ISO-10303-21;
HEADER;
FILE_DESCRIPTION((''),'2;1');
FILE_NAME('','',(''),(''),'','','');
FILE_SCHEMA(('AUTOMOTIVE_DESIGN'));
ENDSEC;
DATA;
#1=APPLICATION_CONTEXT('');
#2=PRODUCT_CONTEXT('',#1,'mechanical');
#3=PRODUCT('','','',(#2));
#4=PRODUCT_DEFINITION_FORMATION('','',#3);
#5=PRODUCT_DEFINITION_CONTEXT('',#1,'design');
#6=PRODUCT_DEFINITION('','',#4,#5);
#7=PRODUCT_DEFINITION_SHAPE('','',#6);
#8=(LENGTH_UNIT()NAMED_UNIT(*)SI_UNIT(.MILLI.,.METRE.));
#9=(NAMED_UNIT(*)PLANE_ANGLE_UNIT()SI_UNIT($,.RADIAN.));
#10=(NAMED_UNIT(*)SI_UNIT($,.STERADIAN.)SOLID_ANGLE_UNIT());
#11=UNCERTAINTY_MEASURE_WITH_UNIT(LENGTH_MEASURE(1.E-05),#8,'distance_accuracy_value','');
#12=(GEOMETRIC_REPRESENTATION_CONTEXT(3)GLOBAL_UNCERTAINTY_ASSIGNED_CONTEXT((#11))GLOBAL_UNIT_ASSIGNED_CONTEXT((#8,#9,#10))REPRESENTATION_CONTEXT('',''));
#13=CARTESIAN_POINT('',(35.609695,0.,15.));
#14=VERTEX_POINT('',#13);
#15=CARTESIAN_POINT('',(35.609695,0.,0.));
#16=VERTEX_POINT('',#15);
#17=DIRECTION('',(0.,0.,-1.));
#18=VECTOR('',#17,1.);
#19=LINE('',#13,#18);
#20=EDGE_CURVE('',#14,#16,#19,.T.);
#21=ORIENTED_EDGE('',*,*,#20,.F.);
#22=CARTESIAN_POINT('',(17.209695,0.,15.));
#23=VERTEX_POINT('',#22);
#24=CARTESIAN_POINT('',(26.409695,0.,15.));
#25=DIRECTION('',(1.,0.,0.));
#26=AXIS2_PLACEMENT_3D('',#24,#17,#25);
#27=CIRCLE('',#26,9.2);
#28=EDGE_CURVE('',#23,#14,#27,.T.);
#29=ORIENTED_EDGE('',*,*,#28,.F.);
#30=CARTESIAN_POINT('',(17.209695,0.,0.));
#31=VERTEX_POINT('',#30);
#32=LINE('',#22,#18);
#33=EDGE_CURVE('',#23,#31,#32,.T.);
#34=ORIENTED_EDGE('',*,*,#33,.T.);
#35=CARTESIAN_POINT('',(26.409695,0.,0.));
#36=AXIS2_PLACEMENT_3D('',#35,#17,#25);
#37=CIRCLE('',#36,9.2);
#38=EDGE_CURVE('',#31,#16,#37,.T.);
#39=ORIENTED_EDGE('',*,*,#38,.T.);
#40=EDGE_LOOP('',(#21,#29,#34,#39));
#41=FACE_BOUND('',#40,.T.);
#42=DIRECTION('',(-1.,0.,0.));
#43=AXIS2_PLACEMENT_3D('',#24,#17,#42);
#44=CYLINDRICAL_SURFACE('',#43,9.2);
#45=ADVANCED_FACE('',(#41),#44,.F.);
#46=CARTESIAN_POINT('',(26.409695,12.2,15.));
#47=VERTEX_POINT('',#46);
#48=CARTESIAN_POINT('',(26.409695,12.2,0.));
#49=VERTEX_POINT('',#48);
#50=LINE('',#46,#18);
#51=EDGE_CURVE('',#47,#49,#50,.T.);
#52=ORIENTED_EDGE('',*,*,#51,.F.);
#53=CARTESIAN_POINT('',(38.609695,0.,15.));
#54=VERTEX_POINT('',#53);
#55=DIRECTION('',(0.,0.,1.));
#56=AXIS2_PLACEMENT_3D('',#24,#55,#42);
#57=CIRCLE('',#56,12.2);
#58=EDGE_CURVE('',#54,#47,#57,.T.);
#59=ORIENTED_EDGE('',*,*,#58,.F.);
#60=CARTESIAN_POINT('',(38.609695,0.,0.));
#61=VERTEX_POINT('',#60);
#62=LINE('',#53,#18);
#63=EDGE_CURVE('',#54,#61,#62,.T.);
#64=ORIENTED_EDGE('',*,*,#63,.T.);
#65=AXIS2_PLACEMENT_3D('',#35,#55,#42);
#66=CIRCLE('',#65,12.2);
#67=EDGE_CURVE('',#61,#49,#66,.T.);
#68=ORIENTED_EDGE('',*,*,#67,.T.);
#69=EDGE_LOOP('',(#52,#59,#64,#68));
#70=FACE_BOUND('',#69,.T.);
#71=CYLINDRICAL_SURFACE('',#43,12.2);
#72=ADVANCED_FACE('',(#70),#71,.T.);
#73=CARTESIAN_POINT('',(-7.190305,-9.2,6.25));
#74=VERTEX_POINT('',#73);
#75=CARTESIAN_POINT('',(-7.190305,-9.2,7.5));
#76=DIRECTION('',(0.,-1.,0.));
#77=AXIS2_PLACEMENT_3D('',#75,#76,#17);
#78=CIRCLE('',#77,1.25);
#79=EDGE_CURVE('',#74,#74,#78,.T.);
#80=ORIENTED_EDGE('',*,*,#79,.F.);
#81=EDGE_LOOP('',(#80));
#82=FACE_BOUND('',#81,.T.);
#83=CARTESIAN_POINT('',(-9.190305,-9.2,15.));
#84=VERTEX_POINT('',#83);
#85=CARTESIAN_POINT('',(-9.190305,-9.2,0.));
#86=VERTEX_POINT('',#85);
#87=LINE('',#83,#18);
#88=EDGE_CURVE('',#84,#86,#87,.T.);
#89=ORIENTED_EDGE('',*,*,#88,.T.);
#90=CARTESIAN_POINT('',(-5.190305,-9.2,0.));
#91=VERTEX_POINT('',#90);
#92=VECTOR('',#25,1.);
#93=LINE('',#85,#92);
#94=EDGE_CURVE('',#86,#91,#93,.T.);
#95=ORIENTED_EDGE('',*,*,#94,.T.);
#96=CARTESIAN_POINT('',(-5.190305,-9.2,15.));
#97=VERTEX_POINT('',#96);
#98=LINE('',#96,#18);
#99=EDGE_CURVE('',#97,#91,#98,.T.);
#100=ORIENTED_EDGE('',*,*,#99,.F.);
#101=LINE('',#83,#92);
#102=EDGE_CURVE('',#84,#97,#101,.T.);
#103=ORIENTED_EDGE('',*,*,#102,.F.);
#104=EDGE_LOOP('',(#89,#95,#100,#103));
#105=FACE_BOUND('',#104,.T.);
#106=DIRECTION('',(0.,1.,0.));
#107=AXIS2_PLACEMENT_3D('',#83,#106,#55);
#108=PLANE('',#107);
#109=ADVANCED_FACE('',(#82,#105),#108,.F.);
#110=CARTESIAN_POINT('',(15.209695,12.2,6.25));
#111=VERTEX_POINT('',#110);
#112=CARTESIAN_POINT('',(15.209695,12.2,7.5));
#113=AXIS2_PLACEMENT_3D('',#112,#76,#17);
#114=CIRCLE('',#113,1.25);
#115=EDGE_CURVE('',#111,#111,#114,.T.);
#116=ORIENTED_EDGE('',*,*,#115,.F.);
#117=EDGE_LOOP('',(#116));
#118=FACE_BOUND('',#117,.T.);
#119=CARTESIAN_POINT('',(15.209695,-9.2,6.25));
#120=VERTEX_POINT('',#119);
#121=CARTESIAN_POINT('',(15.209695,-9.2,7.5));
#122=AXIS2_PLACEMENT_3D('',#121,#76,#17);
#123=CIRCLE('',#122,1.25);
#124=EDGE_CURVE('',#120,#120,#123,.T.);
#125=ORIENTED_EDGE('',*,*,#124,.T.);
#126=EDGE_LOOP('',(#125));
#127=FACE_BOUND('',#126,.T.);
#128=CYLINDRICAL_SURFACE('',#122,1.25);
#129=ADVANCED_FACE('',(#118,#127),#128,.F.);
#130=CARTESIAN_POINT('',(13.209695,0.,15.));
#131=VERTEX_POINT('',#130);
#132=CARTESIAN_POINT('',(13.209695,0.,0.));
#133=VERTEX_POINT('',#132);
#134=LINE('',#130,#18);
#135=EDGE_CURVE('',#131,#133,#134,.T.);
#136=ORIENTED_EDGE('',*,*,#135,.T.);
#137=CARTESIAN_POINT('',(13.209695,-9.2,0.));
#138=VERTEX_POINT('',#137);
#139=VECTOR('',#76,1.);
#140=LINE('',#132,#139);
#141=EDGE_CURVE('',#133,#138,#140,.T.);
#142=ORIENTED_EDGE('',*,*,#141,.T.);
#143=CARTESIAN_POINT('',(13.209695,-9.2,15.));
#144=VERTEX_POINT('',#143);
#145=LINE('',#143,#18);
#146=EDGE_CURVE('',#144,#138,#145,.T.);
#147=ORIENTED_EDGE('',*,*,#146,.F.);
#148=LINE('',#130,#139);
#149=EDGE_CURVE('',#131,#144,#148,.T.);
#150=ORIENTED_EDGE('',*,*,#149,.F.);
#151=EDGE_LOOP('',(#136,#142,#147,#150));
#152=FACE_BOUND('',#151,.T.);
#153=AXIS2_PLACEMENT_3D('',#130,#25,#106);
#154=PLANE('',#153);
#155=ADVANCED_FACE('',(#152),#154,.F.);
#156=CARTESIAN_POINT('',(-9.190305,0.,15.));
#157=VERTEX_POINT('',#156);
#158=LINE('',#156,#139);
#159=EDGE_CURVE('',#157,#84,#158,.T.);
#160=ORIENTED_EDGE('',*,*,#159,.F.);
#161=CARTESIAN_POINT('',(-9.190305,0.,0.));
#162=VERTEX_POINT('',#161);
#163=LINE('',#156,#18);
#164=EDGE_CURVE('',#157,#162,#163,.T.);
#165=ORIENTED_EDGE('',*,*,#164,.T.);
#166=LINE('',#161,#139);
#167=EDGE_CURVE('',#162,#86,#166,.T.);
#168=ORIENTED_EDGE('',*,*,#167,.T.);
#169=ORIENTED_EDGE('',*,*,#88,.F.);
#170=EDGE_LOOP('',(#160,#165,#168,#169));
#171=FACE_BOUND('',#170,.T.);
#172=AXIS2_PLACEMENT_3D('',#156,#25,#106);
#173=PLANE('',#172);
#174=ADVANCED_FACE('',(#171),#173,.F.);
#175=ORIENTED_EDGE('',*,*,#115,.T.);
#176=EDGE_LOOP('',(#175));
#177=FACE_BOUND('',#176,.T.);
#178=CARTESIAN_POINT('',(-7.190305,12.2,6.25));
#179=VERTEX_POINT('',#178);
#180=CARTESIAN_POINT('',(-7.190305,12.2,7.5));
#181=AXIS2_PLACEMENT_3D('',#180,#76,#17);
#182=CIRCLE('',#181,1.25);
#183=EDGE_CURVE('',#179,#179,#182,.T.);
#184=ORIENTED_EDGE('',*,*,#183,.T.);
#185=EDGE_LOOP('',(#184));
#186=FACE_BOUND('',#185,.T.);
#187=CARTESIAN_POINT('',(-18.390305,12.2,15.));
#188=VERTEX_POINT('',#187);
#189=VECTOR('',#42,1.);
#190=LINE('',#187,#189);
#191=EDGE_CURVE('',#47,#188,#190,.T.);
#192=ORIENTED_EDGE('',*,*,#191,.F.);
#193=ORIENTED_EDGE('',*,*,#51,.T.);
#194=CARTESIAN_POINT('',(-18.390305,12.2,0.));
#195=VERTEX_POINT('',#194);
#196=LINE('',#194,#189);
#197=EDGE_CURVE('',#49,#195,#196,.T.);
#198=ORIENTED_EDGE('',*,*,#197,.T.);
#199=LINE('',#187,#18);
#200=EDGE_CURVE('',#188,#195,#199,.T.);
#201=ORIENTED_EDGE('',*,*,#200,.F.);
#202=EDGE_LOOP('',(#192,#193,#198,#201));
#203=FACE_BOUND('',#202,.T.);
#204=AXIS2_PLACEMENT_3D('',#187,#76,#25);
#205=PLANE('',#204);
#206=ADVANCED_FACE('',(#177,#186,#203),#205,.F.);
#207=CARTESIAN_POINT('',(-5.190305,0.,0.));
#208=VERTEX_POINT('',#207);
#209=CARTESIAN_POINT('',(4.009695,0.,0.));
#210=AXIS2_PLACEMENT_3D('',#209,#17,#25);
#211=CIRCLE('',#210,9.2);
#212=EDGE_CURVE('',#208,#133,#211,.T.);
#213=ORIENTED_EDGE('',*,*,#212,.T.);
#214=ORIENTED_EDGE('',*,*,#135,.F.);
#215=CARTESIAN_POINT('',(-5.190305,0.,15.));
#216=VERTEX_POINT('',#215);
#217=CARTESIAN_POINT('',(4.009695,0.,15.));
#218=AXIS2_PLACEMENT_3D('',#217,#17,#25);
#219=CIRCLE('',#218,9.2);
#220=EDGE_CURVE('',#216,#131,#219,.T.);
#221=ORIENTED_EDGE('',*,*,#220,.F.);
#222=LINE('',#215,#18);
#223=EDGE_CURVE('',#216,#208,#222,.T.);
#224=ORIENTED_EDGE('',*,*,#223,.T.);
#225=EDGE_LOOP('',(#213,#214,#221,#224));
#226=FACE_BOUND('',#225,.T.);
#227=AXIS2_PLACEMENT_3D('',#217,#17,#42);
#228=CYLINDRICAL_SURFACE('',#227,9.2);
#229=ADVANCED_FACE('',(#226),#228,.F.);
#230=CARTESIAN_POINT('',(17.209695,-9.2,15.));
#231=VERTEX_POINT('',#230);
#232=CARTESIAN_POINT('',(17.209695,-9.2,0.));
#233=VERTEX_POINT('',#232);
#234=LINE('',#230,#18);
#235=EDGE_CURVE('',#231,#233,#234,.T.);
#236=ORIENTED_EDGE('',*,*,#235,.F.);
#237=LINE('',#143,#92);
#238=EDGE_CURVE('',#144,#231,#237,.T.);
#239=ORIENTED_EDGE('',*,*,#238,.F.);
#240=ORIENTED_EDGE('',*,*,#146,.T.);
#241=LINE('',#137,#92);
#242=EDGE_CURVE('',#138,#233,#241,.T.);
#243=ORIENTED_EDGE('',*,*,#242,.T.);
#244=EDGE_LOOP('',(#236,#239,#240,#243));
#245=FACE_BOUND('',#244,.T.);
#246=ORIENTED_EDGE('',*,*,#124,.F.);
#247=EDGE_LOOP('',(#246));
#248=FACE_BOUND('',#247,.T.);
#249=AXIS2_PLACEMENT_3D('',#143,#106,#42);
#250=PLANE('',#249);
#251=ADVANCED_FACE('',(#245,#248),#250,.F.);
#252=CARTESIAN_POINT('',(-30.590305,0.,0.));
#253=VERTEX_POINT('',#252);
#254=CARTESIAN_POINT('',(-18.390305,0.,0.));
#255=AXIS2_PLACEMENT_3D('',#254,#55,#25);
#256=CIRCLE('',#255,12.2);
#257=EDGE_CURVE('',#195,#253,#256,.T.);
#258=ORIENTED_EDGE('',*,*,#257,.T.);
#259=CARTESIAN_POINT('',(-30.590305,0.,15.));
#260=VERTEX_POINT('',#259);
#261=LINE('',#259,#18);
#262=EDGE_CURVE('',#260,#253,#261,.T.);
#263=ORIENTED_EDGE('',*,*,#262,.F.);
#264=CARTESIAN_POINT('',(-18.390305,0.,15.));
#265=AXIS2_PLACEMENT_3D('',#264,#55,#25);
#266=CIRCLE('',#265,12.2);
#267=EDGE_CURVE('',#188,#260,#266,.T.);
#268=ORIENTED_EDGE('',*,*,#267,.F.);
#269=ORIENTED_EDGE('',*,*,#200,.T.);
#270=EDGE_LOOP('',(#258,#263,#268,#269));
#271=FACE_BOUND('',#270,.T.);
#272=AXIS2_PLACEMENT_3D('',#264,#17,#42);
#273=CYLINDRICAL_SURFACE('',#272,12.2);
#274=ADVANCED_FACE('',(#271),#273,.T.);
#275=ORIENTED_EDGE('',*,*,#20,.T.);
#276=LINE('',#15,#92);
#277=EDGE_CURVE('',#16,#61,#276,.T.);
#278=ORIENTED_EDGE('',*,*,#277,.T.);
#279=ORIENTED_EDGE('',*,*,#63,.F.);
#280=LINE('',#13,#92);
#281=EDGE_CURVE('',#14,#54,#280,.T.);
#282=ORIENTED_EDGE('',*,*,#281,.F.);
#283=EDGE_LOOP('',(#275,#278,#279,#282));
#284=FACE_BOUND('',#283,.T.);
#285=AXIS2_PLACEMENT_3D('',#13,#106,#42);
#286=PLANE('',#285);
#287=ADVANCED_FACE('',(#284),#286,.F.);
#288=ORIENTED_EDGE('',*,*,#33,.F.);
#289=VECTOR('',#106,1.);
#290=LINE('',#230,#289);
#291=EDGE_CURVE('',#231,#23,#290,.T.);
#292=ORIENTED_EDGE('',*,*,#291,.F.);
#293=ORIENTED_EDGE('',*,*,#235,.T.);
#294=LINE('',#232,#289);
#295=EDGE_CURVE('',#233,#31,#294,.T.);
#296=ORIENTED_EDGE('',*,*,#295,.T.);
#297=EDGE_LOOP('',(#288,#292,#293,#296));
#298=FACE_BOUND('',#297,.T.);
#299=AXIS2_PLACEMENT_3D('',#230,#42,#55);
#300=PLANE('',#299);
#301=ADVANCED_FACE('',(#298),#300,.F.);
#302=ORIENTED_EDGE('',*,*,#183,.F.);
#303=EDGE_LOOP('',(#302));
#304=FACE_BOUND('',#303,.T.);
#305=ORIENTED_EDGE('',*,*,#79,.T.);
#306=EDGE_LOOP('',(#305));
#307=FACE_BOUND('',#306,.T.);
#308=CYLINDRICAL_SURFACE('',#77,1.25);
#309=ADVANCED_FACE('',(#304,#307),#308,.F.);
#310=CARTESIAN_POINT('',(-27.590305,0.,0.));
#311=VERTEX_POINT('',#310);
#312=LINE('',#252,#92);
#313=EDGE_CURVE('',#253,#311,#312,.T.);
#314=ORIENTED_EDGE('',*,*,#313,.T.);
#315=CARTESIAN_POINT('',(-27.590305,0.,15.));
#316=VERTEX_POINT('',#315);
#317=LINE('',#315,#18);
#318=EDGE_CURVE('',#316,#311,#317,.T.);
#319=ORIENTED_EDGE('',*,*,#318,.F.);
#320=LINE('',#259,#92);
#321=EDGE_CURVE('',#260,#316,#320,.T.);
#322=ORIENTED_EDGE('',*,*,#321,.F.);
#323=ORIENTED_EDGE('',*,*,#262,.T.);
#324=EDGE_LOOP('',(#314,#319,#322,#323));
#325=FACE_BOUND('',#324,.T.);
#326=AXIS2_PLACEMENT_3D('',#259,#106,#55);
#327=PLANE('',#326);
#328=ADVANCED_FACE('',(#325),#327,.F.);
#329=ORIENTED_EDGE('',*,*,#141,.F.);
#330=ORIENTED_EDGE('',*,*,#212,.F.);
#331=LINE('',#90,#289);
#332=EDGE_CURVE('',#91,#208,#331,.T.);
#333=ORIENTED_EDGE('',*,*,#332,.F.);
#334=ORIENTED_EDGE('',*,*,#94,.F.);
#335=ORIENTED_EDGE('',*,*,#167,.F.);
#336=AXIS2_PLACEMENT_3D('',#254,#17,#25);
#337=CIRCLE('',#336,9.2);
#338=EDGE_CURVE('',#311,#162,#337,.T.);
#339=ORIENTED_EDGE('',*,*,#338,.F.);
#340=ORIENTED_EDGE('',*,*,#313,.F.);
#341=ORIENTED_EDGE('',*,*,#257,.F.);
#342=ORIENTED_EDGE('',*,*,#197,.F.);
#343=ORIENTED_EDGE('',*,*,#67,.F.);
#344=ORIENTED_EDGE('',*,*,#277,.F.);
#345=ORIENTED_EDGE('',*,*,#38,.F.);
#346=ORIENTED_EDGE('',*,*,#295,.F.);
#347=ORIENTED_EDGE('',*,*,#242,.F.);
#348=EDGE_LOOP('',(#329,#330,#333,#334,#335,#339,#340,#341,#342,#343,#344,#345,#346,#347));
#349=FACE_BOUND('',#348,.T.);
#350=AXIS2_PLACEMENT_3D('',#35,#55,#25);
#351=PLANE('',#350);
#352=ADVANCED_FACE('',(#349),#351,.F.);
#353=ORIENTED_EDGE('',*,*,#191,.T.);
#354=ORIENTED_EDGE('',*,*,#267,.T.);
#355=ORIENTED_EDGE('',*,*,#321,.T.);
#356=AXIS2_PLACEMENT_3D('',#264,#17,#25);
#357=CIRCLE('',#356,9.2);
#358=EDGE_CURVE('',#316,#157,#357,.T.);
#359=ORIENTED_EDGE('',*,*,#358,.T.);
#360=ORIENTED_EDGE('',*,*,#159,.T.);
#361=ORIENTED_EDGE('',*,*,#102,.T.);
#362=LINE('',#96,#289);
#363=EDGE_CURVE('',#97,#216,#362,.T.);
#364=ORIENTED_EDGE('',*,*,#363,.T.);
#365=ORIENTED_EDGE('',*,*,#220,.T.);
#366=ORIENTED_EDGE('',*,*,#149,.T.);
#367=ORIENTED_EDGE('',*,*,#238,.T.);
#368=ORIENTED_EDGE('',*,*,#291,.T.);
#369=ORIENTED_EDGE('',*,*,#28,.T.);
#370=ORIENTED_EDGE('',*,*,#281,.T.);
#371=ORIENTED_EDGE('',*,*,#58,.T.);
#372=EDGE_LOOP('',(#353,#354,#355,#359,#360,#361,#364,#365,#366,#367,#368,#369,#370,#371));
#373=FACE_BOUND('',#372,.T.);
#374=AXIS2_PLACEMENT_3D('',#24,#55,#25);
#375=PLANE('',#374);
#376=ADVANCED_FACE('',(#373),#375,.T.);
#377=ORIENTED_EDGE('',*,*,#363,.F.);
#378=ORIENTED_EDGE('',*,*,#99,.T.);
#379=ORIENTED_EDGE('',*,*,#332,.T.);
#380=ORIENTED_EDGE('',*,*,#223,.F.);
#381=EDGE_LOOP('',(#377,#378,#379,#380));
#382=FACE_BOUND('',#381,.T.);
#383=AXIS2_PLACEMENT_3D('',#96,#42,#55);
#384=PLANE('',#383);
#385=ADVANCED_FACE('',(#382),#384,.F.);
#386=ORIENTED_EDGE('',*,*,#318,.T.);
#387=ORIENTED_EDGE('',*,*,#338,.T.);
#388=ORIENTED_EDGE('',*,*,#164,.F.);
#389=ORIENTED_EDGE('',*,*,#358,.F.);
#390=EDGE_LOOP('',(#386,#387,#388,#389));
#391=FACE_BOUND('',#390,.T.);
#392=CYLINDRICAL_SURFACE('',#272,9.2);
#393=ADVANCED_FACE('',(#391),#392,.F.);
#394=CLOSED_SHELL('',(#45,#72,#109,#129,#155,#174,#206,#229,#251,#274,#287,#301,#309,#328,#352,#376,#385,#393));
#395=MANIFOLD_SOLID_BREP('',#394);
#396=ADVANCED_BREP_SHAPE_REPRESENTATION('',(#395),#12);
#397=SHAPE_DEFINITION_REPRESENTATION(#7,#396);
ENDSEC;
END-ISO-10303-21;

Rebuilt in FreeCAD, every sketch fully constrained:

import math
import FreeCAD as App
import Part
import Sketcher
from FreeCAD import Vector

doc = App.newDocument("Part")
body = doc.addObject("PartDesign::Body", "Body")

# Sketch on XY plane
sketch1 = body.newObject("Sketcher::SketchObject", "Sketch")
sketch1.AttachmentSupport = (doc.getObject("XY_Plane"), [""])
sketch1.MapMode = "FlatFace"
sketch1.addGeometry(Part.LineSegment(Vector(-30.6, 0, 0), Vector(-27.6, 0, 0)), False)
sketch1.addGeometry(Part.ArcOfCircle(Part.Circle(Vector(-18.4, 0, 0), Vector(0, 0, 1), 9.2), math.radians(0), math.radians(180)), False)
sketch1.addGeometry(Part.LineSegment(Vector(-9.2, 0, 0), Vector(-9.2, -9.2, 0)), False)
sketch1.addGeometry(Part.LineSegment(Vector(-9.2, -9.2, 0), Vector(-5.2, -9.2, 0)), False)
sketch1.addGeometry(Part.LineSegment(Vector(-5.2, -9.2, 0), Vector(-5.2, 0, 0)), False)
sketch1.addGeometry(Part.ArcOfCircle(Part.Circle(Vector(4, 0, 0), Vector(0, 0, 1), 9.2), math.radians(0), math.radians(180)), False)
sketch1.addGeometry(Part.LineSegment(Vector(13.2, 0, 0), Vector(13.2, -9.2, 0)), False)
sketch1.addGeometry(Part.LineSegment(Vector(13.2, -9.2, 0), Vector(17.2, -9.2, 0)), False)
sketch1.addGeometry(Part.LineSegment(Vector(17.2, -9.2, 0), Vector(17.2, 0, 0)), False)
sketch1.addGeometry(Part.ArcOfCircle(Part.Circle(Vector(26.4, 0, 0), Vector(0, 0, 1), 9.2), math.radians(0), math.radians(180)), False)
sketch1.addGeometry(Part.LineSegment(Vector(35.6, 0, 0), Vector(38.6, 0, 0)), False)
sketch1.addGeometry(Part.ArcOfCircle(Part.Circle(Vector(26.4, 0, 0), Vector(0, 0, 1), 12.2), math.radians(0), math.radians(90)), False)
sketch1.addGeometry(Part.LineSegment(Vector(26.4, 12.2, 0), Vector(-18.4, 12.2, 0)), False)
sketch1.addGeometry(Part.ArcOfCircle(Part.Circle(Vector(-18.4, 0, 0), Vector(0, 0, 1), 12.2), math.radians(90), math.radians(180)), False)
sketch1.addConstraint(Sketcher.Constraint("Coincident", 0, 2, 1, 2))
sketch1.addConstraint(Sketcher.Constraint("Tangent", 1, 1, 2, 1))
sketch1.addConstraint(Sketcher.Constraint("Coincident", 2, 2, 3, 1))
sketch1.addConstraint(Sketcher.Constraint("Coincident", 3, 2, 4, 1))
sketch1.addConstraint(Sketcher.Constraint("Tangent", 4, 2, 5, 2))
sketch1.addConstraint(Sketcher.Constraint("Tangent", 5, 1, 6, 1))
sketch1.addConstraint(Sketcher.Constraint("Coincident", 6, 2, 7, 1))
sketch1.addConstraint(Sketcher.Constraint("Coincident", 7, 2, 8, 1))
sketch1.addConstraint(Sketcher.Constraint("Tangent", 8, 2, 9, 2))
sketch1.addConstraint(Sketcher.Constraint("Coincident", 9, 1, 10, 1))
sketch1.addConstraint(Sketcher.Constraint("Coincident", 10, 2, 11, 1))
sketch1.addConstraint(Sketcher.Constraint("Tangent", 11, 2, 12, 1))
sketch1.addConstraint(Sketcher.Constraint("Tangent", 12, 2, 13, 1))
sketch1.addConstraint(Sketcher.Constraint("Coincident", 13, 2, 0, 1))
sketch1.addConstraint(Sketcher.Constraint("Horizontal", 0))
sketch1.addConstraint(Sketcher.Constraint("Vertical", 2))
sketch1.addConstraint(Sketcher.Constraint("Horizontal", 3))
sketch1.addConstraint(Sketcher.Constraint("Vertical", 4))
sketch1.addConstraint(Sketcher.Constraint("Vertical", 6))
sketch1.addConstraint(Sketcher.Constraint("Horizontal", 7))
sketch1.addConstraint(Sketcher.Constraint("Vertical", 8))
sketch1.addConstraint(Sketcher.Constraint("Horizontal", 10))
sketch1.addConstraint(Sketcher.Constraint("Horizontal", 12))
sketch1.addConstraint(Sketcher.Constraint("Coincident", 11, 3, 9, 3))
sketch1.addConstraint(Sketcher.Constraint("Coincident", 13, 3, 1, 3))
sketch1.addConstraint(Sketcher.Constraint("Equal", 1, 5))
sketch1.addConstraint(Sketcher.Constraint("Equal", 5, 9))
sketch1.addConstraint(Sketcher.Constraint("Equal", 11, 13))
sketch1.addConstraint(Sketcher.Constraint("PointOnObject", 1, 3, -1))
sketch1.addConstraint(Sketcher.Constraint("PointOnObject", 5, 3, -1))
sketch1.addConstraint(Sketcher.Constraint("PointOnObject", 0, 2, -1))
sketch1.addConstraint(Sketcher.Constraint("PointOnObject", 9, 1, -1))
sketch1.addConstraint(Sketcher.Constraint("Horizontal", 3, 2, 6, 2))
sketch1.addConstraint(Sketcher.Constraint("Equal", 3, 7))
sketch1.addConstraint(Sketcher.Constraint("Radius", 1, 9.2))
sketch1.addConstraint(Sketcher.Constraint("Radius", 11, 12.2))
sketch1.addConstraint(Sketcher.Constraint("DistanceX", 3, 1, 3, 2, 4.0))
sketch1.addConstraint(Sketcher.Constraint("DistanceY", 2, 2, 2, 1, 9.2))
sketch1.addConstraint(Sketcher.Constraint("DistanceX", 1, 3, -1, 1, 18.390305))
pad1 = body.newObject("PartDesign::Pad", "Pad")
pad1.Profile = sketch1
pad1.Length = 15

# Sketch on XZ plane
sketch2 = body.newObject("Sketcher::SketchObject", "Sketch001")
sketch2.AttachmentSupport = (doc.getObject("XZ_Plane"), [""])
sketch2.MapMode = "FlatFace"
sketch2.AttachmentOffset = App.Placement(Vector(0, 0, 9.2), App.Rotation())
sketch2.addGeometry(Part.Circle(Vector(-7.2, 7.5, 0), Vector(0, 0, 1), 1.2), False)
sketch2.addGeometry(Part.Circle(Vector(15.2, 7.5, 0), Vector(0, 0, 1), 1.2), False)
sketch2.addConstraint(Sketcher.Constraint("Equal", 0, 1))
sketch2.addConstraint(Sketcher.Constraint("Horizontal", 0, 3, 1, 3))
sketch2.addConstraint(Sketcher.Constraint("Diameter", 0, 2.5))
sketch2.addConstraint(Sketcher.Constraint("DistanceY", -1, 1, 0, 3, 7.5))
sketch2.addConstraint(Sketcher.Constraint("DistanceX", 0, 3, 1, 3, 22.4))
sketch2.addConstraint(Sketcher.Constraint("DistanceX", 0, 3, -1, 1, 7.190305))
doc.recompute()
hole = body.newObject("PartDesign::Hole", "Hole")
hole.Profile = sketch2
hole.ThreadType = "None"
hole.Diameter = 2.5
hole.DepthType = "ThroughAll"

doc.recompute()
